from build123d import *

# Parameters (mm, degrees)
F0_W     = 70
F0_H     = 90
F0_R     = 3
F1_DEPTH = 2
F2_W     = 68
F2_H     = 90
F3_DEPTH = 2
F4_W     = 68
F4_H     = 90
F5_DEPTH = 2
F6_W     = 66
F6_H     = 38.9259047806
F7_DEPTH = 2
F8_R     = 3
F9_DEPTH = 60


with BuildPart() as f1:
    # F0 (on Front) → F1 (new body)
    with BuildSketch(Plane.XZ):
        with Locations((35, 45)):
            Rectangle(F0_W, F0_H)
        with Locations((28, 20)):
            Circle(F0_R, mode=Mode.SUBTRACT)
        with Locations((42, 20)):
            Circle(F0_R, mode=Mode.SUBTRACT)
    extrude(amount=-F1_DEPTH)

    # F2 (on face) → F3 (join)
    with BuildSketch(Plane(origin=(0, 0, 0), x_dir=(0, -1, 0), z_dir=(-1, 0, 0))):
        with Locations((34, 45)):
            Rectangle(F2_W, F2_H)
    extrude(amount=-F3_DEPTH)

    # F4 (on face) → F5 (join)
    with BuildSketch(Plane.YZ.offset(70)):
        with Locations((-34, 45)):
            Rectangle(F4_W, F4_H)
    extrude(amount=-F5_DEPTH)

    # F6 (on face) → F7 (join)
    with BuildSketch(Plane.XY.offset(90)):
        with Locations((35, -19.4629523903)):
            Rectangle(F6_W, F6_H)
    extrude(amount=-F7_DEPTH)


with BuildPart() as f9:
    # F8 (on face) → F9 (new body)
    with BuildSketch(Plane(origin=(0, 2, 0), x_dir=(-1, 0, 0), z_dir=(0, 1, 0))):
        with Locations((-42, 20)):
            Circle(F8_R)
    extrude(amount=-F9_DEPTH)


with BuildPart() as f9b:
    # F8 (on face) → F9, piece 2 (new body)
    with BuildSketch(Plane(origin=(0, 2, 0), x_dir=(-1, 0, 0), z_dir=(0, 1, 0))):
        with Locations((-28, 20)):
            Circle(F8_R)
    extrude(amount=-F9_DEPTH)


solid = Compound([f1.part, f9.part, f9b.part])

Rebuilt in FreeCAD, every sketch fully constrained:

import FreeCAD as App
import Part
import Sketcher
from FreeCAD import Vector
Q = App.Units.Quantity

doc = App.newDocument("Part")
body = doc.addObject("PartDesign::Body", "Body")

# Sketch on XZ plane
sketch1 = doc.addObject("Sketcher::SketchObject", "Sketch")
body.addObject(sketch1)
sketch1.AttachmentSupport = (doc.XZ_Plane, [""])
sketch1.MapMode = "FlatFace"
sketch1.addGeometry([
    Part.LineSegment(Vector(0, 90, 0), Vector(0, 0, 0)),  # 0
    Part.LineSegment(Vector(0, 0, 0), Vector(70, 0, 0)),  # 1
    Part.LineSegment(Vector(70, 0, 0), Vector(70, 90, 0)),  # 2
    Part.LineSegment(Vector(70, 90, 0), Vector(0, 90, 0)),  # 3
    Part.Circle(Vector(28, 20, 0), Vector(0, 0, 1), 3),  # 4
    Part.Circle(Vector(42, 20, 0), Vector(0, 0, 1), 3),  # 5
], False)
sketch1.addConstraint([
    Sketcher.Constraint("Coincident", 0, 2, 1, 1),
    Sketcher.Constraint("Coincident", 1, 2, 2, 1),
    Sketcher.Constraint("Coincident", 2, 2, 3, 1),
    Sketcher.Constraint("Coincident", 3, 2, 0, 1),
    Sketcher.Constraint("Vertical", 0),
    Sketcher.Constraint("Horizontal", 1),
    Sketcher.Constraint("Vertical", 2),
    Sketcher.Constraint("Horizontal", 3),
    Sketcher.Constraint("Coincident", 0, 2, -1, 1),
    Sketcher.Constraint("Equal", 4, 5),
    Sketcher.Constraint("Horizontal", 4, 3, 5, 3),
    Sketcher.Constraint("Diameter", 4, Q("6 mm")),
    Sketcher.Constraint("DistanceX", 1, 1, 1, 2, Q("70 mm")),
    Sketcher.Constraint("DistanceY", 0, 2, 0, 1, Q("90 mm")),
    Sketcher.Constraint("DistanceX", -1, 1, 4, 3, Q("28 mm")),
    Sketcher.Constraint("DistanceY", -1, 1, 4, 3, Q("20 mm")),
    Sketcher.Constraint("DistanceX", -1, 1, 5, 3, Q("42 mm")),
])
pad1 = doc.addObject("PartDesign::Pad", "Pad")
body.addObject(pad1)
pad1.Profile = sketch1
pad1.Length = 2
pad1.Reversed = True

# Sketch on YZ plane
sketch2 = doc.addObject("Sketcher::SketchObject", "Sketch001")
body.addObject(sketch2)
sketch2.AttachmentSupport = (doc.YZ_Plane, [""])
sketch2.MapMode = "FlatFace"
sketch2.addGeometry([
    Part.LineSegment(Vector(0, 90, 0), Vector(0, 0, 0)),
    Part.LineSegment(Vector(0, 0, 0), Vector(-68, 0, 0)),
    Part.LineSegment(Vector(-68, 0, 0), Vector(-68, 90, 0)),
    Part.LineSegment(Vector(-68, 90, 0), Vector(0, 90, 0)),
], False)
sketch2.addConstraint([
    Sketcher.Constraint("Coincident", 0, 2, 1, 1),
    Sketcher.Constraint("Coincident", 1, 2, 2, 1),
    Sketcher.Constraint("Coincident", 2, 2, 3, 1),
    Sketcher.Constraint("Coincident", 3, 2, 0, 1),
    Sketcher.Constraint("Vertical", 0),
    Sketcher.Constraint("Horizontal", 1),
    Sketcher.Constraint("Vertical", 2),
    Sketcher.Constraint("Horizontal", 3),
    Sketcher.Constraint("Coincident", 0, 2, -1, 1),
    Sketcher.Constraint("DistanceX", 1, 2, 1, 1, Q("68 mm")),
    Sketcher.Constraint("DistanceY", 0, 2, 0, 1, Q("90 mm")),
])
pad2 = doc.addObject("PartDesign::Pad", "Pad001")
body.addObject(pad2)
pad2.Profile = sketch2
pad2.Length = 2

# Sketch on YZ plane
sketch3 = doc.addObject("Sketcher::SketchObject", "Sketch002")
body.addObject(sketch3)
sketch3.AttachmentSupport = (doc.YZ_Plane, [""])
sketch3.MapMode = "FlatFace"
sketch3.AttachmentOffset = App.Placement(Vector(0, 0, 70), App.Rotation())
sketch3.addGeometry([
    Part.LineSegment(Vector(-68, 90, 0), Vector(-68, 0, 0)),
    Part.LineSegment(Vector(-68, 0, 0), Vector(0, 0, 0)),
    Part.LineSegment(Vector(0, 0, 0), Vector(0, 90, 0)),
    Part.LineSegment(Vector(0, 90, 0), Vector(-68, 90, 0)),
], False)
sketch3.addConstraint([
    Sketcher.Constraint("Coincident", 0, 2, 1, 1),
    Sketcher.Constraint("Coincident", 1, 2, 2, 1),
    Sketcher.Constraint("Coincident", 2, 2, 3, 1),
    Sketcher.Constraint("Coincident", 3, 2, 0, 1),
    Sketcher.Constraint("Vertical", 0),
    Sketcher.Constraint("Horizontal", 1),
    Sketcher.Constraint("Vertical", 2),
    Sketcher.Constraint("Horizontal", 3),
    Sketcher.Constraint("Coincident", 1, 2, -1, 1),
    Sketcher.Constraint("DistanceX", 1, 1, 1, 2, Q("68 mm")),
    Sketcher.Constraint("DistanceY", 0, 2, 0, 1, Q("90 mm")),
])
pad3 = doc.addObject("PartDesign::Pad", "Pad002")
body.addObject(pad3)
pad3.Profile = sketch3
pad3.Length = 2
pad3.Reversed = True

# Sketch on XY plane
sketch4 = doc.addObject("Sketcher::SketchObject", "Sketch003")
body.addObject(sketch4)
sketch4.AttachmentSupport = (doc.XY_Plane, [""])
sketch4.MapMode = "FlatFace"
sketch4.AttachmentOffset = App.Placement(Vector(0, 0, 90), App.Rotation())
sketch4.addGeometry([
    Part.LineSegment(Vector(2, 0, 0), Vector(2, -39, 0)),
    Part.LineSegment(Vector(2, -39, 0), Vector(68, -39, 0)),
    Part.LineSegment(Vector(68, -39, 0), Vector(68, 0, 0)),
    Part.LineSegment(Vector(68, 0, 0), Vector(2, 0, 0)),
], False)
sketch4.addConstraint([
    Sketcher.Constraint("Coincident", 0, 2, 1, 1),
    Sketcher.Constraint("Coincident", 1, 2, 2, 1),
    Sketcher.Constraint("Coincident", 2, 2, 3, 1),
    Sketcher.Constraint("Coincident", 3, 2, 0, 1),
    Sketcher.Constraint("Vertical", 0),
    Sketcher.Constraint("Horizontal", 1),
    Sketcher.Constraint("Vertical", 2),
    Sketcher.Constraint("Horizontal", 3),
    Sketcher.Constraint("PointOnObject", 2, 2, -1),
    Sketcher.Constraint("DistanceX", 1, 1, 1, 2, Q("66 mm")),
    Sketcher.Constraint("DistanceX", -1, 1, 0, 2, Q("2 mm")),
    Sketcher.Constraint("DistanceY", 0, 2, 0, 1, Q("38.925905 mm")),
])
pad4 = doc.addObject("PartDesign::Pad", "Pad003")
body.addObject(pad4)
pad4.Profile = sketch4
pad4.Length = 2
pad4.Reversed = True
body2 = doc.addObject("PartDesign::Body", "Body001")

# Sketch on XZ plane
sketch5 = doc.addObject("Sketcher::SketchObject", "Sketch004")
body2.addObject(sketch5)
sketch5.AttachmentSupport = (doc.getObject("XZ_Plane001"), [""])
sketch5.MapMode = "FlatFace"
sketch5.AttachmentOffset = App.Placement(Vector(0, 0, -2), App.Rotation())
sketch5.addGeometry(Part.Circle(Vector(42, 20, 0), Vector(0, 0, 1), 3), False)
sketch5.addConstraint([
    Sketcher.Constraint("Diameter", 0, Q("6 mm")),
    Sketcher.Constraint("DistanceX", -1, 1, 0, 3, Q("42 mm")),
    Sketcher.Constraint("DistanceY", -1, 1, 0, 3, Q("20 mm")),
])
pad5 = doc.addObject("PartDesign::Pad", "Pad004")
body2.addObject(pad5)
pad5.Profile = sketch5
pad5.Length = 60
body3 = doc.addObject("PartDesign::Body", "Body002")

# Sketch on XZ plane
sketch6 = doc.addObject("Sketcher::SketchObject", "Sketch005")
body3.addObject(sketch6)
sketch6.AttachmentSupport = (doc.getObject("XZ_Plane002"), [""])
sketch6.MapMode = "FlatFace"
sketch6.AttachmentOffset = App.Placement(Vector(0, 0, -2), App.Rotation())
sketch6.addGeometry(Part.Circle(Vector(28, 20, 0), Vector(0, 0, 1), 3), False)
sketch6.addConstraint([
    Sketcher.Constraint("Diameter", 0, Q("6 mm")),
    Sketcher.Constraint("DistanceX", -1, 1, 0, 3, Q("28 mm")),
    Sketcher.Constraint("DistanceY", -1, 1, 0, 3, Q("20 mm")),
])
pad6 = doc.addObject("PartDesign::Pad", "Pad005")
body3.addObject(pad6)
pad6.Profile = sketch6
pad6.Length = 60

doc.recompute()
